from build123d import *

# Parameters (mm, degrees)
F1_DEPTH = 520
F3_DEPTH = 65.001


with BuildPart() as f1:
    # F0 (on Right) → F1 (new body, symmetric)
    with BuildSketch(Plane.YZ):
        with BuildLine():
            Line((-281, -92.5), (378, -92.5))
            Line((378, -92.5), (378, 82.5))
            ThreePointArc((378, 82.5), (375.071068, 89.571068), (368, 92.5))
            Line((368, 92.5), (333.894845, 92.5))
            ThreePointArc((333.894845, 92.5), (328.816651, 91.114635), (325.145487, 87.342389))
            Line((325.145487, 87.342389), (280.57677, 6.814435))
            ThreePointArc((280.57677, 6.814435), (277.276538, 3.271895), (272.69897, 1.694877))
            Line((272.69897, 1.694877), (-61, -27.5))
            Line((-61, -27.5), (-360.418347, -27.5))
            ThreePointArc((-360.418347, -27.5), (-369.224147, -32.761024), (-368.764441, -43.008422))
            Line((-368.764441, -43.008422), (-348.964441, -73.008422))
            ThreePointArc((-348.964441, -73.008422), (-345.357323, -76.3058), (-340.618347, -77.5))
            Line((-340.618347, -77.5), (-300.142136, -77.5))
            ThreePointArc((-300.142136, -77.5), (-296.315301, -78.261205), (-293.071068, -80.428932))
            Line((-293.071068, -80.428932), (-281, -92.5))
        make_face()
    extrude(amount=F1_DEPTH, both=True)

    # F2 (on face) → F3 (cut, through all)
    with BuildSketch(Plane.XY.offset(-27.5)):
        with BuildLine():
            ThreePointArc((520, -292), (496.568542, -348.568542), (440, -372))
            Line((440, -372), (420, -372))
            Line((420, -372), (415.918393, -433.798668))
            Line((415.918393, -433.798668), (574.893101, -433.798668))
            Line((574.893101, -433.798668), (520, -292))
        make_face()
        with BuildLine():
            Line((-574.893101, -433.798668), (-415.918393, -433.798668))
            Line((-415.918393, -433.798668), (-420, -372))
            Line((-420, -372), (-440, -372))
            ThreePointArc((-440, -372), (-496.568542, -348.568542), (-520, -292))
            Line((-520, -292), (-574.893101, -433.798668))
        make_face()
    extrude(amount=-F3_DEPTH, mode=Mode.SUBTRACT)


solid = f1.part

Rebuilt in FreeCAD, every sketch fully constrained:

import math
import FreeCAD as App
import Part
import Sketcher
from FreeCAD import Vector
Q = App.Units.Quantity

doc = App.newDocument("Part")
body = doc.addObject("PartDesign::Body", "Body")

# Sketch on YZ plane
sketch1 = body.newObject("Sketcher::SketchObject", "Sketch")
sketch1.AttachmentSupport = (doc.getObject("YZ_Plane"), [""])
sketch1.MapMode = "FlatFace"
sketch1.addGeometry(Part.LineSegment(Vector(-281, -92.5, 0), Vector(378, -92.5, 0)), False)
sketch1.addGeometry(Part.LineSegment(Vector(378, -92.5, 0), Vector(378, 82.5, 0)), False)
sketch1.addGeometry(Part.ArcOfCircle(Part.Circle(Vector(368.000001, 82.500001, 0), Vector(0, 0, 1), 9.999999), math.radians(-0.000004), math.radians(90.000004)), False)
sketch1.addGeometry(Part.LineSegment(Vector(368, 92.5, 0), Vector(333.894845, 92.5, 0)), False)
sketch1.addGeometry(Part.ArcOfCircle(Part.Circle(Vector(333.894847, 82.499998, 0), Vector(0, 0, 1), 10.000002), math.radians(90.000009), math.radians(151.037373)), False)
sketch1.addGeometry(Part.LineSegment(Vector(325.145487, 87.342389, 0), Vector(280.57677, 6.814435, 0)), False)
sketch1.addGeometry(Part.ArcOfCircle(Part.Circle(Vector(271.827414, 11.65682, 0), Vector(0, 0, 1), 9.999996), math.radians(-85.000006), math.radians(-28.962608)), False)
sketch1.addGeometry(Part.LineSegment(Vector(272.69897, 1.694877, 0), Vector(-61, -27.5, 0)), False)
sketch1.addGeometry(Part.LineSegment(Vector(-61, -27.5, 0), Vector(-360.418347, -27.5, 0)), False)
sketch1.addGeometry(Part.ArcOfCircle(Part.Circle(Vector(-360.418348, -37.5, 0), Vector(0, 0, 1), 10), math.radians(89.999996), math.radians(213.424815)), False)
sketch1.addGeometry(Part.LineSegment(Vector(-368.764441, -43.008422, 0), Vector(-348.964441, -73.008422, 0)), False)
sketch1.addGeometry(Part.ArcOfCircle(Part.Circle(Vector(-340.618349, -67.500003, 0), Vector(0, 0, 1), 9.999997), math.radians(-146.575199), math.radians(-89.999991)), False)
sketch1.addGeometry(Part.LineSegment(Vector(-340.618347, -77.5, 0), Vector(-300.142136, -77.5, 0)), False)
sketch1.addGeometry(Part.ArcOfCircle(Part.Circle(Vector(-300.142137, -87.500002, 0), Vector(0, 0, 1), 10.000002), math.radians(45.000007), math.radians(89.999997)), False)
sketch1.addGeometry(Part.LineSegment(Vector(-293.071068, -80.428932, 0), Vector(-281, -92.5, 0)), False)
sketch1.addConstraint(Sketcher.Constraint("Coincident", 0, 2, 1, 1))
sketch1.addConstraint(Sketcher.Constraint("Coincident", 1, 2, 2, 1))
sketch1.addConstraint(Sketcher.Constraint("Coincident", 2, 2, 3, 1))
sketch1.addConstraint(Sketcher.Constraint("Coincident", 3, 2, 4, 1))
sketch1.addConstraint(Sketcher.Constraint("Coincident", 4, 2, 5, 1))
sketch1.addConstraint(Sketcher.Constraint("Coincident", 5, 2, 6, 2))
sketch1.addConstraint(Sketcher.Constraint("Coincident", 6, 1, 7, 1))
sketch1.addConstraint(Sketcher.Constraint("Coincident", 7, 2, 8, 1))
sketch1.addConstraint(Sketcher.Constraint("Coincident", 8, 2, 9, 1))
sketch1.addConstraint(Sketcher.Constraint("Coincident", 9, 2, 10, 1))
sketch1.addConstraint(Sketcher.Constraint("Coincident", 10, 2, 11, 1))
sketch1.addConstraint(Sketcher.Constraint("Coincident", 11, 2, 12, 1))
sketch1.addConstraint(Sketcher.Constraint("Coincident", 12, 2, 13, 2))
sketch1.addConstraint(Sketcher.Constraint("Coincident", 13, 1, 14, 1))
sketch1.addConstraint(Sketcher.Constraint("Coincident", 14, 2, 0, 1))
sketch1.addConstraint(Sketcher.Constraint("Horizontal", 0))
sketch1.addConstraint(Sketcher.Constraint("Vertical", 1))
sketch1.addConstraint(Sketcher.Constraint("Horizontal", 3))
sketch1.addConstraint(Sketcher.Constraint("Horizontal", 8))
sketch1.addConstraint(Sketcher.Constraint("Horizontal", 12))
sketch1.addConstraint(Sketcher.Constraint("Radius", 2, Q("9.999999 mm")))
sketch1.addConstraint(Sketcher.Constraint("Radius", 9, Q("10 mm")))
sketch1.addConstraint(Sketcher.Constraint("DistanceX", 0, 1, 0, 2, Q("659 mm")))
sketch1.addConstraint(Sketcher.Constraint("DistanceY", 1, 1, 1, 2, Q("175 mm")))
sketch1.addConstraint(Sketcher.Constraint("DistanceX", -1, 1, 2, 3, Q("368.000001 mm")))
sketch1.addConstraint(Sketcher.Constraint("DistanceX", -1, 1, 2, 2, Q("368 mm")))
sketch1.addConstraint(Sketcher.Constraint("DistanceX", 7, 2, -1, 1, Q("61 mm")))
sketch1.addConstraint(Sketcher.Constraint("DistanceY", 9, 3, 2, 3, Q("120 mm")))
sketch1.addConstraint(Sketcher.Constraint("DistanceY", 11, 3, 4, 3, Q("150.000001 mm")))
sketch1.addConstraint(Sketcher.Constraint("DistanceY", 13, 3, 11, 3, Q("19.999999 mm")))
sketch1.addConstraint(Sketcher.Constraint("DistanceY", 0, 2, 2, 3, Q("175.000001 mm")))
sketch1.addConstraint(Sketcher.Constraint("DistanceY", 10, 2, 9, 2, Q("30 mm")))
sketch1.addConstraint(Sketcher.Constraint("DistanceY", 11, 2, 9, 3, Q("40 mm")))
sketch1.addConstraint(Sketcher.Constraint("DistanceY", -1, 1, 2, 3, Q("82.500001 mm")))
sketch1.addConstraint(Sketcher.Constraint("DistanceX", 9, 3, 11, 3, Q("19.799999 mm")))
sketch1.addConstraint(Sketcher.Constraint("DistanceX", 8, 2, 11, 3, Q("19.799998 mm")))
sketch1.addConstraint(Sketcher.Constraint("DistanceX", 9, 2, 10, 2, Q("19.8 mm")))
sketch1.addConstraint(Sketcher.Constraint("DistanceX", 9, 3, 11, 2, Q("19.800001 mm")))
sketch1.addConstraint(Sketcher.Constraint("Radius", 6, Q("9.999996 mm")))
sketch1.addConstraint(Sketcher.Constraint("DistanceX", 12, 1, 12, 2, Q("40.476211 mm")))
sketch1.addConstraint(Sketcher.Constraint("DistanceX", 6, 1, 5, 2, Q("7.8778 mm")))
sketch1.addConstraint(Sketcher.Constraint("Distance", 14, Q("17.071068 mm")))
sketch1.addConstraint(Sketcher.Constraint("DistanceX", 3, 2, 3, 1, Q("34.105155 mm")))
sketch1.addConstraint(Sketcher.Constraint("DistanceX", 8, 2, 8, 1, Q("299.418347 mm")))
sketch1.addConstraint(Sketcher.Constraint("DistanceY", -1, 1, 6, 3, Q("11.65682 mm")))
sketch1.addConstraint(Sketcher.Constraint("DistanceY", -1, 1, 4, 2, Q("87.342389 mm")))
sketch1.addConstraint(Sketcher.Constraint("DistanceX", -1, 1, 5, 2, Q("280.57677 mm")))
sketch1.addConstraint(Sketcher.Constraint("DistanceX", 9, 2, -1, 1, Q("368.764441 mm")))
sketch1.addConstraint(Sketcher.Constraint("DistanceY", 13, 1, -1, 1, Q("80.428932 mm")))
sketch1.addConstraint(Sketcher.Constraint("DistanceX", 9, 3, 6, 3, Q("632.245762 mm")))
sketch1.addConstraint(Sketcher.Constraint("DistanceX", 4, 2, 3, 2, Q("8.749358 mm")))
pad1 = body.newObject("PartDesign::Pad", "Pad")
pad1.Profile = sketch1
pad1.Length = 1040
pad1.Midplane = True

# Sketch on XY plane
sketch2 = body.newObject("Sketcher::SketchObject", "Sketch001")
sketch2.AttachmentSupport = (doc.getObject("XY_Plane"), [""])
sketch2.MapMode = "FlatFace"
sketch2.AttachmentOffset = App.Placement(Vector(0, 0, -27.5), App.Rotation())
sketch2.addGeometry(Part.ArcOfCircle(Part.Circle(Vector(440, -292, 0), Vector(0, 0, 1), 80), math.radians(-90), math.radians(0)), False)
sketch2.addGeometry(Part.LineSegment(Vector(440, -372, 0), Vector(420, -372, 0)), False)
sketch2.addGeometry(Part.LineSegment(Vector(420, -372, 0), Vector(416, -434, 0)), False)
sketch2.addGeometry(Part.LineSegment(Vector(416, -434, 0), Vector(575, -434, 0)), False)
sketch2.addGeometry(Part.LineSegment(Vector(575, -434, 0), Vector(520, -292, 0)), False)
sketch2.addGeometry(Part.LineSegment(Vector(-575, -434, 0), Vector(-416, -434, 0)), False)
sketch2.addGeometry(Part.LineSegment(Vector(-416, -434, 0), Vector(-420, -372, 0)), False)
sketch2.addGeometry(Part.LineSegment(Vector(-420, -372, 0), Vector(-440, -372, 0)), False)
sketch2.addGeometry(Part.ArcOfCircle(Part.Circle(Vector(-440, -292, 0), Vector(0, 0, 1), 80), math.radians(-180), math.radians(-90)), False)
sketch2.addGeometry(Part.LineSegment(Vector(-520, -292, 0), Vector(-575, -434, 0)), False)
sketch2.addConstraint(Sketcher.Constraint("Tangent", 0, 1, 1, 1))
sketch2.addConstraint(Sketcher.Constraint("Coincident", 1, 2, 2, 1))
sketch2.addConstraint(Sketcher.Constraint("Coincident", 2, 2, 3, 1))
sketch2.addConstraint(Sketcher.Constraint("Coincident", 3, 2, 4, 1))
sketch2.addConstraint(Sketcher.Constraint("Coincident", 4, 2, 0, 2))
sketch2.addConstraint(Sketcher.Constraint("Coincident", 5, 2, 6, 1))
sketch2.addConstraint(Sketcher.Constraint("Coincident", 6, 2, 7, 1))
sketch2.addConstraint(Sketcher.Constraint("Tangent", 7, 2, 8, 2))
sketch2.addConstraint(Sketcher.Constraint("Coincident", 8, 1, 9, 1))
sketch2.addConstraint(Sketcher.Constraint("Coincident", 9, 2, 5, 1))
sketch2.addConstraint(Sketcher.Constraint("Horizontal", 1))
sketch2.addConstraint(Sketcher.Constraint("Horizontal", 3))
sketch2.addConstraint(Sketcher.Constraint("Horizontal", 5))
sketch2.addConstraint(Sketcher.Constraint("Horizontal", 7))
sketch2.addConstraint(Sketcher.Constraint("Equal", 0, 8))
sketch2.addConstraint(Sketcher.Constraint("Symmetric", 0, 3, 8, 3, -2))
sketch2.addConstraint(Sketcher.Constraint("Symmetric", 2, 2, 5, 2, -2))
sketch2.addConstraint(Sketcher.Constraint("Horizontal", 8, 3, 4, 2))
sketch2.addConstraint(Sketcher.Constraint("Horizontal", 4, 2, 8, 1))
sketch2.addConstraint(Sketcher.Constraint("Equal", 3, 5))
sketch2.addConstraint(Sketcher.Constraint("Equal", 1, 7))
sketch2.addConstraint(Sketcher.Constraint("Radius", 0, Q("80.000002 mm")))
sketch2.addConstraint(Sketcher.Constraint("DistanceX", 1, 2, 1, 1, Q("20 mm")))
sketch2.addConstraint(Sketcher.Constraint("DistanceX", -1, 1, 0, 3, Q("439.999998 mm")))
sketch2.addConstraint(Sketcher.Constraint("DistanceY", 0, 3, -1, 1, Q("291.999998 mm")))
sketch2.addConstraint(Sketcher.Constraint("Distance", 4, Q("152.053 mm")))
sketch2.addConstraint(Sketcher.Constraint("DistanceX", 3, 1, 3, 2, Q("158.974708 mm")))
sketch2.addConstraint(Sketcher.Constraint("DistanceX", -1, 1, 3, 2, Q("574.893101 mm")))
pocket1 = body.newObject("PartDesign::Pocket", "Pocket")
pocket1.Profile = sketch2
pocket1.Type = "ThroughAll"

doc.recompute()
